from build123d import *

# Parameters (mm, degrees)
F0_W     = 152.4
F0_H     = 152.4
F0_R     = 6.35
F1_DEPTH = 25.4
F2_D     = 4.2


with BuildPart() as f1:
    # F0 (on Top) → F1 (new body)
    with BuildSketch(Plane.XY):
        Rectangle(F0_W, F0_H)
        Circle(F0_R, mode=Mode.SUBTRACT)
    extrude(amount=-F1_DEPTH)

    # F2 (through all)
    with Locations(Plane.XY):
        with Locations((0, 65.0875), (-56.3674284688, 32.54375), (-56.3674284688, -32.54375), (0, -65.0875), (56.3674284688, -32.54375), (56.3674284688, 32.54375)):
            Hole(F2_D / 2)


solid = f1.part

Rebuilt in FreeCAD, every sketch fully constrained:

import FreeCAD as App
import Part
import Sketcher
Q = App.Units.Quantity

doc = App.newDocument("Part")
body = doc.addObject("PartDesign::Body", "Body")

# Sketch on XY plane
sketch1 = body.newObject("Sketcher::SketchObject", "Sketch")
sketch1.AttachmentSupport = (doc.getObject("XY_Plane"), [""])
sketch1.MapMode = "FlatFace"
sketch1.addGeometry([
    Part.LineSegment(App.Vector(-76.2, 76.2, 0), App.Vector(-76.2, -76.2, 0)),  # 0
    Part.LineSegment(App.Vector(-76.2, -76.2, 0), App.Vector(76.2, -76.2, 0)),  # 1
    Part.LineSegment(App.Vector(76.2, -76.2, 0), App.Vector(76.2, 76.2, 0)),  # 2
    Part.LineSegment(App.Vector(76.2, 76.2, 0), App.Vector(-76.2, 76.2, 0)),  # 3
    Part.Circle(App.Vector(0, 0, 0), App.Vector(0, 0, 1), 6.35),  # 4
], False)
sketch1.addConstraint([
    Sketcher.Constraint("Coincident", 0, 2, 1, 1),
    Sketcher.Constraint("Coincident", 1, 2, 2, 1),
    Sketcher.Constraint("Coincident", 2, 2, 3, 1),
    Sketcher.Constraint("Coincident", 3, 2, 0, 1),
    Sketcher.Constraint("Vertical", 0),
    Sketcher.Constraint("Horizontal", 1),
    Sketcher.Constraint("Vertical", 2),
    Sketcher.Constraint("Horizontal", 3),
    Sketcher.Constraint("Coincident", 4, 3, -1, 1),
    Sketcher.Constraint("Symmetric", 0, 2, 2, 2, -1, 1),
    Sketcher.Constraint("Equal", 3, 0),
    Sketcher.Constraint("Diameter", 4, Q("0.5 in")),
    Sketcher.Constraint("DistanceX", 1, 1, 1, 2, Q("6 in")),
])
pad1 = body.newObject("PartDesign::Pad", "Pad")
pad1.Profile = sketch1
pad1.Length = Q("1 in")
pad1.Reversed = True

# Sketch on XY plane
sketch2 = body.newObject("Sketcher::SketchObject", "Sketch001")
sketch2.AttachmentSupport = (doc.getObject("XY_Plane"), [""])
sketch2.MapMode = "FlatFace"
sketch2.addGeometry([
    Part.Circle(App.Vector(0, 65.0875, 0), App.Vector(0, 0, 1), 2.1),  # 0
    Part.Circle(App.Vector(-56.367428, 32.54375, 0), App.Vector(0, 0, 1), 2.1),  # 1
    Part.Circle(App.Vector(-56.367428, -32.54375, 0), App.Vector(0, 0, 1), 2.1),  # 2
    Part.Circle(App.Vector(0, -65.0875, 0), App.Vector(0, 0, 1), 2.1),  # 3
    Part.Circle(App.Vector(56.367428, -32.54375, 0), App.Vector(0, 0, 1), 2.1),  # 4
    Part.Circle(App.Vector(56.367428, 32.54375, 0), App.Vector(0, 0, 1), 2.1),  # 5
], False)
sketch2.addConstraint([
    Sketcher.Constraint("Equal", 0, 1),
    Sketcher.Constraint("Equal", 1, 2),
    Sketcher.Constraint("Equal", 2, 3),
    Sketcher.Constraint("Equal", 3, 4),
    Sketcher.Constraint("Equal", 4, 5),
    Sketcher.Constraint("Symmetric", 0, 3, 3, 3, -1, 1),
    Sketcher.Constraint("Symmetric", 1, 3, 4, 3, -1, 1),
    Sketcher.Constraint("Symmetric", 2, 3, 5, 3, -1, 1),
    Sketcher.Constraint("Symmetric", 2, 3, 4, 3, -2),
    Sketcher.Constraint("PointOnObject", 0, 3, -2),
    Sketcher.Constraint("Diameter", 0, Q("4.2 mm")),
    Sketcher.Constraint("DistanceY", -1, 1, 0, 3, Q("2.5625 in")),
    Sketcher.Constraint("DistanceY", -1, 1, 1, 3, Q("1.28125 in")),
    Sketcher.Constraint("DistanceX", 1, 3, -1, 1, Q("56.367428 mm")),
])
doc.recompute()
hole = body.newObject("PartDesign::Hole", "Hole")
hole.Profile = sketch2
hole.ThreadType = "None"
hole.Diameter = 4.2
hole.DepthType = "ThroughAll"

doc.recompute()
